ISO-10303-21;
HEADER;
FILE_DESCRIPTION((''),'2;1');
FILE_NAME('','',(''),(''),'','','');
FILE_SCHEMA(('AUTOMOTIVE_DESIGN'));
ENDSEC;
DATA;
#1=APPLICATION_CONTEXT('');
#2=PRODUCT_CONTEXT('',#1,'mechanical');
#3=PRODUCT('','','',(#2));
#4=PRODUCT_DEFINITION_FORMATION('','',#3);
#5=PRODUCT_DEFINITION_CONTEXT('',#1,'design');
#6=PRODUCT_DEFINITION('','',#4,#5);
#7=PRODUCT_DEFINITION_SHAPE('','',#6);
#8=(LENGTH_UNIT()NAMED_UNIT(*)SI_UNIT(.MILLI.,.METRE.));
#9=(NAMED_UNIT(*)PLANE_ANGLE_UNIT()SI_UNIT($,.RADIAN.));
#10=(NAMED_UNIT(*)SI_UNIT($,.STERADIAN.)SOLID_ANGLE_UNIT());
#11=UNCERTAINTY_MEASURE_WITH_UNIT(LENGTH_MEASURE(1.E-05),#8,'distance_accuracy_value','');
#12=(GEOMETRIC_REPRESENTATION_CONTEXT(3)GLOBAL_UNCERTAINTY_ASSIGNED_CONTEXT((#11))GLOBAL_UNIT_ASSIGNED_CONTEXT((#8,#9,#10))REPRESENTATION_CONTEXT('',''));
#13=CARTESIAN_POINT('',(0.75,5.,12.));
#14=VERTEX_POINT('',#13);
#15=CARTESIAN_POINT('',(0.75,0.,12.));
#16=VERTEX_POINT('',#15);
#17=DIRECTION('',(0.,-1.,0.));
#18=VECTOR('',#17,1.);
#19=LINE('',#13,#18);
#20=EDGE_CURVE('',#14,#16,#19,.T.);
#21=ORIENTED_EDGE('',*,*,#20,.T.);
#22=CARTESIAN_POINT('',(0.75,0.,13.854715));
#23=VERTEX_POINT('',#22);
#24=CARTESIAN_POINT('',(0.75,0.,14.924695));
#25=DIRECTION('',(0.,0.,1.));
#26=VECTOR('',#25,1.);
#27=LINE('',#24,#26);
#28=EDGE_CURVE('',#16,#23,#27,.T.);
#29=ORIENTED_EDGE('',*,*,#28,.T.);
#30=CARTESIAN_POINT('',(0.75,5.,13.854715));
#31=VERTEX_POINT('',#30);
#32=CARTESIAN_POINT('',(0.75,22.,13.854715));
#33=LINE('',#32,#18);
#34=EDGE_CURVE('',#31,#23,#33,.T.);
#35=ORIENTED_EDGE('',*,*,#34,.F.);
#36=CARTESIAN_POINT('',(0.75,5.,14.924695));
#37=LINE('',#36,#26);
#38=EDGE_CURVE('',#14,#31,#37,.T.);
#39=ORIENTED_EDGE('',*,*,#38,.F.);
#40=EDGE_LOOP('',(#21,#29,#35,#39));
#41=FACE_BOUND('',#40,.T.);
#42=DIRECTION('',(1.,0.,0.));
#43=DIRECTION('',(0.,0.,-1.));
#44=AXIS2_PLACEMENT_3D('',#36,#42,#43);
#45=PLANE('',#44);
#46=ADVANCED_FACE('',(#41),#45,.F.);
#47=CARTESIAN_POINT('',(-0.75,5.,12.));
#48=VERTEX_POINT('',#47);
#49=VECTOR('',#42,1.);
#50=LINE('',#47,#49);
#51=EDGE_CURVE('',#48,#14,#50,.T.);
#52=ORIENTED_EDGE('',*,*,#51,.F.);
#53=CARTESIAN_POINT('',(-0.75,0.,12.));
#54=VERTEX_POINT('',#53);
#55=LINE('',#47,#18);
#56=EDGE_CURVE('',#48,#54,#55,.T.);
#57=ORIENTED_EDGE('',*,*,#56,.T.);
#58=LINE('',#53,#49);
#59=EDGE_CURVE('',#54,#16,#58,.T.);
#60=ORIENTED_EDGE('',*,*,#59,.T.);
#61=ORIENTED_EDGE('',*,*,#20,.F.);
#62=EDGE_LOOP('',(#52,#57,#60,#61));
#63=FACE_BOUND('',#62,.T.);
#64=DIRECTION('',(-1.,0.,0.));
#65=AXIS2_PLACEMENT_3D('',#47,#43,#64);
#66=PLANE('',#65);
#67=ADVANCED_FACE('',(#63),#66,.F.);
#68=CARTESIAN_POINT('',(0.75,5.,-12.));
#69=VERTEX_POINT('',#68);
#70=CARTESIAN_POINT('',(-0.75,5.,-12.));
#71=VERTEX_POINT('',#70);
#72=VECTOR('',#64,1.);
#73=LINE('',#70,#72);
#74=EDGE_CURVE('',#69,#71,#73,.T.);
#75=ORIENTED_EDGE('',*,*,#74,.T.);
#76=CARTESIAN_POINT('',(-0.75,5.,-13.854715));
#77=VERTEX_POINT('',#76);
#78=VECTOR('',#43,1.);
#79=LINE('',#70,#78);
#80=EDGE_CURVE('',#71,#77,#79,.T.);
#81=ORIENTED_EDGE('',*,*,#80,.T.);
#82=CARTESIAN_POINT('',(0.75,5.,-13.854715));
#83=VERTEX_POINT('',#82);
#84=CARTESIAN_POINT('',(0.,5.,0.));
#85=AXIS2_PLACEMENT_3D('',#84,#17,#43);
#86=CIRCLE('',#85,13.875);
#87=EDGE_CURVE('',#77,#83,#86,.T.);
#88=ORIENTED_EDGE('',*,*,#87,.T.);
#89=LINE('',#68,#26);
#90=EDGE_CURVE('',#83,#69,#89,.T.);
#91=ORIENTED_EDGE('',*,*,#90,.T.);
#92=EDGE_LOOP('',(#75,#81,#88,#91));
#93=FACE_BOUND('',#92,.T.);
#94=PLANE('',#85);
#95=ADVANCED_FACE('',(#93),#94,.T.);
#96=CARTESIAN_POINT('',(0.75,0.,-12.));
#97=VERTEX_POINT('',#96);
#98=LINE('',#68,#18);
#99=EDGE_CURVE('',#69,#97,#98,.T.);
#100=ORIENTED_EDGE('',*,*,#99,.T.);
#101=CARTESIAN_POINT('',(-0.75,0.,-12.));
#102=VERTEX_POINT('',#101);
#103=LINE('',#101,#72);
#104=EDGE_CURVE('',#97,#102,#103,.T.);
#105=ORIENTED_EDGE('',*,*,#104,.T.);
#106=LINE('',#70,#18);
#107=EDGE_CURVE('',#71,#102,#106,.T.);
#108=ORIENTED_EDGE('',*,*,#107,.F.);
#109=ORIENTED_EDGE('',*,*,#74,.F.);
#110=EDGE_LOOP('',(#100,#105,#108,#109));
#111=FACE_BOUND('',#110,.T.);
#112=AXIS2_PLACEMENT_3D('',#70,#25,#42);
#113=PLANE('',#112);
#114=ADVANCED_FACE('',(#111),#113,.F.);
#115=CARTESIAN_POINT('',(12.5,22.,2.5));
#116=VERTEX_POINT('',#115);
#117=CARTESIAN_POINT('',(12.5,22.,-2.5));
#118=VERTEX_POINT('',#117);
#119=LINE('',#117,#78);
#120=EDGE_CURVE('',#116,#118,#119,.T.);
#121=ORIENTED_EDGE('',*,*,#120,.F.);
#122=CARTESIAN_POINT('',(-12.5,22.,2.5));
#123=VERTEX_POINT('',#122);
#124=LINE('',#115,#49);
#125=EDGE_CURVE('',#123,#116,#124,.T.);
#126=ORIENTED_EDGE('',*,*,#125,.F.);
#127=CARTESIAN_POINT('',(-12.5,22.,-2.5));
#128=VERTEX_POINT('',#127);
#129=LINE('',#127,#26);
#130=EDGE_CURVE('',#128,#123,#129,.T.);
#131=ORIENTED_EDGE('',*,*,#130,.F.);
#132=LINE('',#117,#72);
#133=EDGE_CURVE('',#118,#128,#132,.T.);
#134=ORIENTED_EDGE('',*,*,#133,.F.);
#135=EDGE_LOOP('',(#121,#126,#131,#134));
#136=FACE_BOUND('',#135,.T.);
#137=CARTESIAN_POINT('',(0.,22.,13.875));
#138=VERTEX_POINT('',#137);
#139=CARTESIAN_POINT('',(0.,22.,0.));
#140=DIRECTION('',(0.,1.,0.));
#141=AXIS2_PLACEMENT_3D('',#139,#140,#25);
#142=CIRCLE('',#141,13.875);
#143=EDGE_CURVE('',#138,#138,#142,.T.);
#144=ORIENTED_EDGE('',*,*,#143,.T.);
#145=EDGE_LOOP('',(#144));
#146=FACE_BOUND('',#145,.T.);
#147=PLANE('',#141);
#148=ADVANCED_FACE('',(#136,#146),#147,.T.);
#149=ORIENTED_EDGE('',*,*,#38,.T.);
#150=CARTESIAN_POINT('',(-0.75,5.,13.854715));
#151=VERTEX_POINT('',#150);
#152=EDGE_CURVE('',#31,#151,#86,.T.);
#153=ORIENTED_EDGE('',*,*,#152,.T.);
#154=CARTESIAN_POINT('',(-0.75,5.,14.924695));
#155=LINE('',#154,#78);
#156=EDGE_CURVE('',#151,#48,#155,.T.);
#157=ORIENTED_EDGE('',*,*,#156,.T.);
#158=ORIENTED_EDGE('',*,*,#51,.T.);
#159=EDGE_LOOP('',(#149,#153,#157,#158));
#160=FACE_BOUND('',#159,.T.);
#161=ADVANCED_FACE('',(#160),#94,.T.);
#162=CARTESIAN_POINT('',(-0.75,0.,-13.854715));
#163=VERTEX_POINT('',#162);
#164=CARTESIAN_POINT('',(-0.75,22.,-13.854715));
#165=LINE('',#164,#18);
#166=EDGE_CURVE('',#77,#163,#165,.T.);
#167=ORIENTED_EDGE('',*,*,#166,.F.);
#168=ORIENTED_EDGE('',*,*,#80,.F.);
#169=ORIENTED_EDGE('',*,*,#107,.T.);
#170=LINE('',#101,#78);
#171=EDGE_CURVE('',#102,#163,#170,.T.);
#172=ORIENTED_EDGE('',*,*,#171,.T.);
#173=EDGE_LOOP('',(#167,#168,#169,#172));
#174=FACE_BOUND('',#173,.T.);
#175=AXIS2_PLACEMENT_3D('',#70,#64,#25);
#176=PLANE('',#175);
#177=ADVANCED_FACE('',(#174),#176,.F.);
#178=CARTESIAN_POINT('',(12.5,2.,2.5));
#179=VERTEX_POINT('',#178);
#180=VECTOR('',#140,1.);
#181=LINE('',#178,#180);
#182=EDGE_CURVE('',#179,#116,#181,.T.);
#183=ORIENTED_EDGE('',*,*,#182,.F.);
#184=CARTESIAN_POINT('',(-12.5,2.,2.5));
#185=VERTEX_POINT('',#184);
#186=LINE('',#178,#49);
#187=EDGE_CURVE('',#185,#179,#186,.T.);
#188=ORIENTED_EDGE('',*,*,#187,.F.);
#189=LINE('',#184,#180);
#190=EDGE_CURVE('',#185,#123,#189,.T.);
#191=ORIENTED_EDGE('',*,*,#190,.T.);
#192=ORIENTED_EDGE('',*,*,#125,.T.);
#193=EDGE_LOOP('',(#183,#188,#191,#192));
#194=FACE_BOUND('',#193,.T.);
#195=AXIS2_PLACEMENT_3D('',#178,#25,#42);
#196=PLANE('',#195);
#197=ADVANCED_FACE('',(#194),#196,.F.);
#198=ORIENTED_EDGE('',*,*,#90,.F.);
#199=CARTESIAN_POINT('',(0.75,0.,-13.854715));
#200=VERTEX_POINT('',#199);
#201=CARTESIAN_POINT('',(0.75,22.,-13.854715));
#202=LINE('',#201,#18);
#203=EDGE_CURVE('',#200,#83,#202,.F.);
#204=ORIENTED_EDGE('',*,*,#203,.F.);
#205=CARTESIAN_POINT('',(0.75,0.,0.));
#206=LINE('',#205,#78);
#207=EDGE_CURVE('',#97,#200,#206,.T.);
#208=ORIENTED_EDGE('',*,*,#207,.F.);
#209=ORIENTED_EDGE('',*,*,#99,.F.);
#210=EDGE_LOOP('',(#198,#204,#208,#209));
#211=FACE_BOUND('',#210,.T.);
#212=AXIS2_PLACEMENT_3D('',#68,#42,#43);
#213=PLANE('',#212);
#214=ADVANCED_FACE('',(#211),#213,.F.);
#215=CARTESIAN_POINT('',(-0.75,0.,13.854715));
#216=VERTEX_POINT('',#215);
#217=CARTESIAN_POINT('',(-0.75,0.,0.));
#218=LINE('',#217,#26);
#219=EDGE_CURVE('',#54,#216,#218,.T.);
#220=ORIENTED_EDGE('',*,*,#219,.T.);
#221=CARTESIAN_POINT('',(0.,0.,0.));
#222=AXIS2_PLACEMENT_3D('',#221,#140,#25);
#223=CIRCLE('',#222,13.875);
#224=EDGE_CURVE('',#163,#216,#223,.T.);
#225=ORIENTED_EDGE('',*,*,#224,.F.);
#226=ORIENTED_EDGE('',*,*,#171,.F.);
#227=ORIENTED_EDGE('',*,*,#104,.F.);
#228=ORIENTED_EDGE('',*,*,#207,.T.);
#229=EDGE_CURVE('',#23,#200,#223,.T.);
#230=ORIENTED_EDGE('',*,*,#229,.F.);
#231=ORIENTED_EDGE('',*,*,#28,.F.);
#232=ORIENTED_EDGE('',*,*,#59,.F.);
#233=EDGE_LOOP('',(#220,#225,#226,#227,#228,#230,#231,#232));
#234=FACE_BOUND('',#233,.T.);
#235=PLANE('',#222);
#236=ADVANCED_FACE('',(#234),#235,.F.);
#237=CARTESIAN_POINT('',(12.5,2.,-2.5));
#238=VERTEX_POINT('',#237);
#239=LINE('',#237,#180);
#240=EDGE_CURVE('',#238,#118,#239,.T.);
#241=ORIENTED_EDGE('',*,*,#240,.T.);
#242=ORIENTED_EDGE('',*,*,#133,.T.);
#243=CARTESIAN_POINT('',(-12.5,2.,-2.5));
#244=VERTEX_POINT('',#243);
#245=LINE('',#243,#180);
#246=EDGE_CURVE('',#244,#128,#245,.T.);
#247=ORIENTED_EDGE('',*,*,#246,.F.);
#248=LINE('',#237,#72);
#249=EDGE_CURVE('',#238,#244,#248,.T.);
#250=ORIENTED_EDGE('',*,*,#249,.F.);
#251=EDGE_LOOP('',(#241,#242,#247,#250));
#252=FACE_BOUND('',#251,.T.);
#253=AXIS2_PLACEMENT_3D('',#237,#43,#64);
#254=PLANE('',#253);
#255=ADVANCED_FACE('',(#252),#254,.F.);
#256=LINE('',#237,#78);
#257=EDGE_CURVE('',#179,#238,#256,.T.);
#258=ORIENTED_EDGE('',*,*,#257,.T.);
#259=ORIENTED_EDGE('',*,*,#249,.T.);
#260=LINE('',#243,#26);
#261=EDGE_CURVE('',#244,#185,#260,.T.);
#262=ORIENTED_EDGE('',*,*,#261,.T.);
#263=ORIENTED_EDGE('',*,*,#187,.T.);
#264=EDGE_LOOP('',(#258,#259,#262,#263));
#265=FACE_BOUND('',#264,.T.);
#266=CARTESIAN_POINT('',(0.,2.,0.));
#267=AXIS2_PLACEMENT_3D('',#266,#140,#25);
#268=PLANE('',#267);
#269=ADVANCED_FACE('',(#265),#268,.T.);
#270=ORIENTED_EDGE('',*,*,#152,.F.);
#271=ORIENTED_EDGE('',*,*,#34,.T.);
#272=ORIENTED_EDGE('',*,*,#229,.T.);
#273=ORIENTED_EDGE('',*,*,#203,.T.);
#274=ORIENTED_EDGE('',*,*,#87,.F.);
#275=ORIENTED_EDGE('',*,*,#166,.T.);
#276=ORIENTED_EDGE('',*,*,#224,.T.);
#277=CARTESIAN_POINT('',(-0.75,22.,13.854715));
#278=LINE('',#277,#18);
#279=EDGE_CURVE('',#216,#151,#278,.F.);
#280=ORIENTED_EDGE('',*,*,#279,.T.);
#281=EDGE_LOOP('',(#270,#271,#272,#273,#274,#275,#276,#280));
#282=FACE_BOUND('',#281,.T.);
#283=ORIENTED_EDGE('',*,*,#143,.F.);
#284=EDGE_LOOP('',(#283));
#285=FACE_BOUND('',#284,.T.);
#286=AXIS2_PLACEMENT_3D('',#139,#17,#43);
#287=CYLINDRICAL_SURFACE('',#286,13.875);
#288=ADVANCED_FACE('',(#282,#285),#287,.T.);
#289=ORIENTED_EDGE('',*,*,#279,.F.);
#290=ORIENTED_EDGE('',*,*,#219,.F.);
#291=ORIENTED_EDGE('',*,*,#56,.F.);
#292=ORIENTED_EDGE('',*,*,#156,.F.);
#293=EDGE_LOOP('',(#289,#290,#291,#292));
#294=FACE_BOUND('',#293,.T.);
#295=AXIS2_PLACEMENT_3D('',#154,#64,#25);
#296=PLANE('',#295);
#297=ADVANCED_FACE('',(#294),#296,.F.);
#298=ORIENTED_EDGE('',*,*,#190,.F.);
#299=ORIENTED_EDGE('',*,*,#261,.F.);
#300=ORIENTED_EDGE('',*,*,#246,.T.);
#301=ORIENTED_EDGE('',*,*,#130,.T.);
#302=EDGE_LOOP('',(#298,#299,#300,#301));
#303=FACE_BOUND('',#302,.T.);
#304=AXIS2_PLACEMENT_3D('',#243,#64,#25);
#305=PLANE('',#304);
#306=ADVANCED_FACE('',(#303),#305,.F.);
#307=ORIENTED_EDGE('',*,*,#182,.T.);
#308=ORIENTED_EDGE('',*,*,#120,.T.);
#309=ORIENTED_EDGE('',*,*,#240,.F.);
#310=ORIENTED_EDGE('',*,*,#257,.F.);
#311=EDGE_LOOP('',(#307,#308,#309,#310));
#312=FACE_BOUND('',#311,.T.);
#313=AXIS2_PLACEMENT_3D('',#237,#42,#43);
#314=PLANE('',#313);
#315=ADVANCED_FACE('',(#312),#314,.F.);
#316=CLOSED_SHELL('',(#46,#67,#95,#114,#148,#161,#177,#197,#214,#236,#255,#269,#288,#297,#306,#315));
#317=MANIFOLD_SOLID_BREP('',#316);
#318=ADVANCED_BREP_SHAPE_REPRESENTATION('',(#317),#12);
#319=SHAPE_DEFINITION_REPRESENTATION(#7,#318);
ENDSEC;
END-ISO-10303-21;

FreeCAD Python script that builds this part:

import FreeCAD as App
import Part
import Sketcher
Q = App.Units.Quantity

doc = App.newDocument("Part")
body = doc.addObject("PartDesign::Body", "Body")

# Sketch on XZ plane
sketch1 = body.newObject("Sketcher::SketchObject", "Sketch")
sketch1.AttachmentSupport = (doc.getObject("XZ_Plane"), [""])
sketch1.MapMode = "FlatFace"
sketch1.addGeometry(Part.Circle(App.Vector(0, 0, 0), App.Vector(0, 0, 1), 14), False)
sketch1.addConstraint([
    Sketcher.Constraint("Coincident", 0, 3, -1, 1),
    Sketcher.Constraint("Diameter", 0, Q("27.75 mm")),
])
pad1 = body.newObject("PartDesign::Pad", "Pad")
pad1.Profile = sketch1
pad1.Length = 22
pad1.Reversed = True

# Sketch on XZ plane
sketch2 = body.newObject("Sketcher::SketchObject", "Sketch001")
sketch2.AttachmentSupport = (doc.getObject("XZ_Plane"), [""])
sketch2.MapMode = "FlatFace"
sketch2.addGeometry([
    Part.LineSegment(App.Vector(-0.8, 14.9, 0), App.Vector(-0.8, 12, 0)),  # 0
    Part.LineSegment(App.Vector(-0.8, 12, 0), App.Vector(0.8, 12, 0)),  # 1
    Part.LineSegment(App.Vector(0.8, 12, 0), App.Vector(0.8, 14.9, 0)),  # 2
    Part.LineSegment(App.Vector(0.8, 14.9, 0), App.Vector(-0.8, 14.9, 0)),  # 3
    Part.LineSegment(App.Vector(-0.8, -12, 0), App.Vector(-0.8, -16.5, 0)),  # 4
    Part.LineSegment(App.Vector(-0.8, -16.5, 0), App.Vector(0.8, -16.5, 0)),  # 5
    Part.LineSegment(App.Vector(0.8, -16.5, 0), App.Vector(0.8, -12, 0)),  # 6
    Part.LineSegment(App.Vector(0.8, -12, 0), App.Vector(-0.8, -12, 0)),  # 7
], False)
sketch2.addConstraint([
    Sketcher.Constraint("Coincident", 0, 2, 1, 1),
    Sketcher.Constraint("Coincident", 1, 2, 2, 1),
    Sketcher.Constraint("Coincident", 2, 2, 3, 1),
    Sketcher.Constraint("Coincident", 3, 2, 0, 1),
    Sketcher.Constraint("Coincident", 4, 2, 5, 1),
    Sketcher.Constraint("Coincident", 5, 2, 6, 1),
    Sketcher.Constraint("Coincident", 6, 2, 7, 1),
    Sketcher.Constraint("Coincident", 7, 2, 4, 1),
    Sketcher.Constraint("Vertical", 0),
    Sketcher.Constraint("Horizontal", 1),
    Sketcher.Constraint("Vertical", 2),
    Sketcher.Constraint("Horizontal", 3),
    Sketcher.Constraint("Vertical", 4),
    Sketcher.Constraint("Horizontal", 5),
    Sketcher.Constraint("Vertical", 6),
    Sketcher.Constraint("Horizontal", 7),
    Sketcher.Constraint("Symmetric", 0, 2, 6, 2, -1, 1),
    Sketcher.Constraint("Vertical", 3, 2, 4, 2),
    Sketcher.Constraint("Vertical", 2, 2, 5, 2),
    Sketcher.Constraint("DistanceX", 1, 1, 1, 2, Q("1.5 mm")),
    Sketcher.Constraint("DistanceY", -1, 1, 0, 2, Q("12 mm")),
    Sketcher.Constraint("DistanceY", 4, 2, 3, 2, Q("31.391499 mm")),
    Sketcher.Constraint("DistanceY", 0, 2, 0, 1, Q("2.924695 mm")),
])
pocket1 = body.newObject("PartDesign::Pocket", "Pocket")
pocket1.Profile = sketch2
pocket1.Length = 5

# Sketch on XZ plane
sketch3 = body.newObject("Sketcher::SketchObject", "Sketch002")
sketch3.AttachmentSupport = (doc.getObject("XZ_Plane"), [""])
sketch3.MapMode = "FlatFace"
sketch3.AttachmentOffset = App.Placement(App.Vector(0, 0, -22), App.Rotation())
sketch3.addGeometry([
    Part.LineSegment(App.Vector(-12, -2, 0), App.Vector(-12, 2, 0)),
    Part.LineSegment(App.Vector(-12, 2, 0), App.Vector(12, 2, 0)),
    Part.LineSegment(App.Vector(12, 2, 0), App.Vector(12, -2, 0)),
    Part.LineSegment(App.Vector(12, -2, 0), App.Vector(-12, -2, 0)),
], False)
sketch3.addConstraint([
    Sketcher.Constraint("Coincident", 0, 2, 1, 1),
    Sketcher.Constraint("Coincident", 1, 2, 2, 1),
    Sketcher.Constraint("Coincident", 2, 2, 3, 1),
    Sketcher.Constraint("Coincident", 3, 2, 0, 1),
    Sketcher.Constraint("Vertical", 0),
    Sketcher.Constraint("Horizontal", 1),
    Sketcher.Constraint("Vertical", 2),
    Sketcher.Constraint("Horizontal", 3),
    Sketcher.Constraint("Symmetric", 0, 2, 2, 2, -1, 1),
    Sketcher.Constraint("DistanceX", 1, 1, 1, 2, Q("25 mm")),
    Sketcher.Constraint("DistanceY", 0, 1, 0, 2, Q("5 mm")),
])
pocket2 = body.newObject("PartDesign::Pocket", "Pocket001")
pocket2.Profile = sketch3
pocket2.Length = 20
pocket2.Reversed = True

doc.recompute()
